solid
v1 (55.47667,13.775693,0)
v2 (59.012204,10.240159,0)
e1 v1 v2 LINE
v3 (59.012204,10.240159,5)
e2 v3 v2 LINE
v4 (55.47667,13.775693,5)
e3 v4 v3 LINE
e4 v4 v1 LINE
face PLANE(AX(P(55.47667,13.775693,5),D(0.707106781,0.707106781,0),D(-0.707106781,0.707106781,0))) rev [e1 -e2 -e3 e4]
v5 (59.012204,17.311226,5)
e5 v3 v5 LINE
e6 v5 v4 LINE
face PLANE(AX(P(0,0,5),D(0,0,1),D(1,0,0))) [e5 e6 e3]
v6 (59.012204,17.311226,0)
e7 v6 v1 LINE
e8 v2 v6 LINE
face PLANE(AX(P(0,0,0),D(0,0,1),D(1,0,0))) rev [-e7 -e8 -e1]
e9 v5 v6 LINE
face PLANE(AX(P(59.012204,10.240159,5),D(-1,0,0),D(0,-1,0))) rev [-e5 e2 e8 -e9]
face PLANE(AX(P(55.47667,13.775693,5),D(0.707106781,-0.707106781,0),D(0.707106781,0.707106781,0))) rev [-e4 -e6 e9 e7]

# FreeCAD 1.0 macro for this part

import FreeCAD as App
import Part
import Sketcher
Q = App.Units.Quantity

doc = App.newDocument("Part")
body = doc.addObject("PartDesign::Body", "Body")

# Sketch on XY plane
sketch1 = doc.addObject("Sketcher::SketchObject", "Sketch")
body.addObject(sketch1)
sketch1.AttachmentSupport = (doc.XY_Plane, [""])
sketch1.MapMode = "FlatFace"
sketch1.addGeometry(Part.LineSegment(App.Vector(59, 17, 0), App.Vector(55, 14, 0)), False)
sketch1.addGeometry(Part.LineSegment(App.Vector(55, 14, 0), App.Vector(59, 10, 0)), False)
sketch1.addGeometry(Part.LineSegment(App.Vector(59, 10, 0), App.Vector(59, 17, 0)), False)
sketch1.addConstraint(Sketcher.Constraint("Coincident", 0, 2, 1, 1))
sketch1.addConstraint(Sketcher.Constraint("Coincident", 1, 2, 2, 1))
sketch1.addConstraint(Sketcher.Constraint("Coincident", 2, 2, 0, 1))
sketch1.addConstraint(Sketcher.Constraint("Vertical", 2))
sketch1.addConstraint(Sketcher.Constraint("Perpendicular", 0, 1))
sketch1.addConstraint(Sketcher.Constraint("Equal", 0, 1))
sketch1.addConstraint(Sketcher.Constraint("Distance", 0, Q("5 mm")))
sketch1.addConstraint(Sketcher.Constraint("DistanceX", -1, 1, 0, 2, Q("55.47667 mm")))
sketch1.addConstraint(Sketcher.Constraint("DistanceY", -1, 1, 1, 2, Q("10.240159 mm")))
pad1 = doc.addObject("PartDesign::Pad", "Pad")
body.addObject(pad1)
pad1.Profile = sketch1
pad1.Length = 5

doc.recompute()
